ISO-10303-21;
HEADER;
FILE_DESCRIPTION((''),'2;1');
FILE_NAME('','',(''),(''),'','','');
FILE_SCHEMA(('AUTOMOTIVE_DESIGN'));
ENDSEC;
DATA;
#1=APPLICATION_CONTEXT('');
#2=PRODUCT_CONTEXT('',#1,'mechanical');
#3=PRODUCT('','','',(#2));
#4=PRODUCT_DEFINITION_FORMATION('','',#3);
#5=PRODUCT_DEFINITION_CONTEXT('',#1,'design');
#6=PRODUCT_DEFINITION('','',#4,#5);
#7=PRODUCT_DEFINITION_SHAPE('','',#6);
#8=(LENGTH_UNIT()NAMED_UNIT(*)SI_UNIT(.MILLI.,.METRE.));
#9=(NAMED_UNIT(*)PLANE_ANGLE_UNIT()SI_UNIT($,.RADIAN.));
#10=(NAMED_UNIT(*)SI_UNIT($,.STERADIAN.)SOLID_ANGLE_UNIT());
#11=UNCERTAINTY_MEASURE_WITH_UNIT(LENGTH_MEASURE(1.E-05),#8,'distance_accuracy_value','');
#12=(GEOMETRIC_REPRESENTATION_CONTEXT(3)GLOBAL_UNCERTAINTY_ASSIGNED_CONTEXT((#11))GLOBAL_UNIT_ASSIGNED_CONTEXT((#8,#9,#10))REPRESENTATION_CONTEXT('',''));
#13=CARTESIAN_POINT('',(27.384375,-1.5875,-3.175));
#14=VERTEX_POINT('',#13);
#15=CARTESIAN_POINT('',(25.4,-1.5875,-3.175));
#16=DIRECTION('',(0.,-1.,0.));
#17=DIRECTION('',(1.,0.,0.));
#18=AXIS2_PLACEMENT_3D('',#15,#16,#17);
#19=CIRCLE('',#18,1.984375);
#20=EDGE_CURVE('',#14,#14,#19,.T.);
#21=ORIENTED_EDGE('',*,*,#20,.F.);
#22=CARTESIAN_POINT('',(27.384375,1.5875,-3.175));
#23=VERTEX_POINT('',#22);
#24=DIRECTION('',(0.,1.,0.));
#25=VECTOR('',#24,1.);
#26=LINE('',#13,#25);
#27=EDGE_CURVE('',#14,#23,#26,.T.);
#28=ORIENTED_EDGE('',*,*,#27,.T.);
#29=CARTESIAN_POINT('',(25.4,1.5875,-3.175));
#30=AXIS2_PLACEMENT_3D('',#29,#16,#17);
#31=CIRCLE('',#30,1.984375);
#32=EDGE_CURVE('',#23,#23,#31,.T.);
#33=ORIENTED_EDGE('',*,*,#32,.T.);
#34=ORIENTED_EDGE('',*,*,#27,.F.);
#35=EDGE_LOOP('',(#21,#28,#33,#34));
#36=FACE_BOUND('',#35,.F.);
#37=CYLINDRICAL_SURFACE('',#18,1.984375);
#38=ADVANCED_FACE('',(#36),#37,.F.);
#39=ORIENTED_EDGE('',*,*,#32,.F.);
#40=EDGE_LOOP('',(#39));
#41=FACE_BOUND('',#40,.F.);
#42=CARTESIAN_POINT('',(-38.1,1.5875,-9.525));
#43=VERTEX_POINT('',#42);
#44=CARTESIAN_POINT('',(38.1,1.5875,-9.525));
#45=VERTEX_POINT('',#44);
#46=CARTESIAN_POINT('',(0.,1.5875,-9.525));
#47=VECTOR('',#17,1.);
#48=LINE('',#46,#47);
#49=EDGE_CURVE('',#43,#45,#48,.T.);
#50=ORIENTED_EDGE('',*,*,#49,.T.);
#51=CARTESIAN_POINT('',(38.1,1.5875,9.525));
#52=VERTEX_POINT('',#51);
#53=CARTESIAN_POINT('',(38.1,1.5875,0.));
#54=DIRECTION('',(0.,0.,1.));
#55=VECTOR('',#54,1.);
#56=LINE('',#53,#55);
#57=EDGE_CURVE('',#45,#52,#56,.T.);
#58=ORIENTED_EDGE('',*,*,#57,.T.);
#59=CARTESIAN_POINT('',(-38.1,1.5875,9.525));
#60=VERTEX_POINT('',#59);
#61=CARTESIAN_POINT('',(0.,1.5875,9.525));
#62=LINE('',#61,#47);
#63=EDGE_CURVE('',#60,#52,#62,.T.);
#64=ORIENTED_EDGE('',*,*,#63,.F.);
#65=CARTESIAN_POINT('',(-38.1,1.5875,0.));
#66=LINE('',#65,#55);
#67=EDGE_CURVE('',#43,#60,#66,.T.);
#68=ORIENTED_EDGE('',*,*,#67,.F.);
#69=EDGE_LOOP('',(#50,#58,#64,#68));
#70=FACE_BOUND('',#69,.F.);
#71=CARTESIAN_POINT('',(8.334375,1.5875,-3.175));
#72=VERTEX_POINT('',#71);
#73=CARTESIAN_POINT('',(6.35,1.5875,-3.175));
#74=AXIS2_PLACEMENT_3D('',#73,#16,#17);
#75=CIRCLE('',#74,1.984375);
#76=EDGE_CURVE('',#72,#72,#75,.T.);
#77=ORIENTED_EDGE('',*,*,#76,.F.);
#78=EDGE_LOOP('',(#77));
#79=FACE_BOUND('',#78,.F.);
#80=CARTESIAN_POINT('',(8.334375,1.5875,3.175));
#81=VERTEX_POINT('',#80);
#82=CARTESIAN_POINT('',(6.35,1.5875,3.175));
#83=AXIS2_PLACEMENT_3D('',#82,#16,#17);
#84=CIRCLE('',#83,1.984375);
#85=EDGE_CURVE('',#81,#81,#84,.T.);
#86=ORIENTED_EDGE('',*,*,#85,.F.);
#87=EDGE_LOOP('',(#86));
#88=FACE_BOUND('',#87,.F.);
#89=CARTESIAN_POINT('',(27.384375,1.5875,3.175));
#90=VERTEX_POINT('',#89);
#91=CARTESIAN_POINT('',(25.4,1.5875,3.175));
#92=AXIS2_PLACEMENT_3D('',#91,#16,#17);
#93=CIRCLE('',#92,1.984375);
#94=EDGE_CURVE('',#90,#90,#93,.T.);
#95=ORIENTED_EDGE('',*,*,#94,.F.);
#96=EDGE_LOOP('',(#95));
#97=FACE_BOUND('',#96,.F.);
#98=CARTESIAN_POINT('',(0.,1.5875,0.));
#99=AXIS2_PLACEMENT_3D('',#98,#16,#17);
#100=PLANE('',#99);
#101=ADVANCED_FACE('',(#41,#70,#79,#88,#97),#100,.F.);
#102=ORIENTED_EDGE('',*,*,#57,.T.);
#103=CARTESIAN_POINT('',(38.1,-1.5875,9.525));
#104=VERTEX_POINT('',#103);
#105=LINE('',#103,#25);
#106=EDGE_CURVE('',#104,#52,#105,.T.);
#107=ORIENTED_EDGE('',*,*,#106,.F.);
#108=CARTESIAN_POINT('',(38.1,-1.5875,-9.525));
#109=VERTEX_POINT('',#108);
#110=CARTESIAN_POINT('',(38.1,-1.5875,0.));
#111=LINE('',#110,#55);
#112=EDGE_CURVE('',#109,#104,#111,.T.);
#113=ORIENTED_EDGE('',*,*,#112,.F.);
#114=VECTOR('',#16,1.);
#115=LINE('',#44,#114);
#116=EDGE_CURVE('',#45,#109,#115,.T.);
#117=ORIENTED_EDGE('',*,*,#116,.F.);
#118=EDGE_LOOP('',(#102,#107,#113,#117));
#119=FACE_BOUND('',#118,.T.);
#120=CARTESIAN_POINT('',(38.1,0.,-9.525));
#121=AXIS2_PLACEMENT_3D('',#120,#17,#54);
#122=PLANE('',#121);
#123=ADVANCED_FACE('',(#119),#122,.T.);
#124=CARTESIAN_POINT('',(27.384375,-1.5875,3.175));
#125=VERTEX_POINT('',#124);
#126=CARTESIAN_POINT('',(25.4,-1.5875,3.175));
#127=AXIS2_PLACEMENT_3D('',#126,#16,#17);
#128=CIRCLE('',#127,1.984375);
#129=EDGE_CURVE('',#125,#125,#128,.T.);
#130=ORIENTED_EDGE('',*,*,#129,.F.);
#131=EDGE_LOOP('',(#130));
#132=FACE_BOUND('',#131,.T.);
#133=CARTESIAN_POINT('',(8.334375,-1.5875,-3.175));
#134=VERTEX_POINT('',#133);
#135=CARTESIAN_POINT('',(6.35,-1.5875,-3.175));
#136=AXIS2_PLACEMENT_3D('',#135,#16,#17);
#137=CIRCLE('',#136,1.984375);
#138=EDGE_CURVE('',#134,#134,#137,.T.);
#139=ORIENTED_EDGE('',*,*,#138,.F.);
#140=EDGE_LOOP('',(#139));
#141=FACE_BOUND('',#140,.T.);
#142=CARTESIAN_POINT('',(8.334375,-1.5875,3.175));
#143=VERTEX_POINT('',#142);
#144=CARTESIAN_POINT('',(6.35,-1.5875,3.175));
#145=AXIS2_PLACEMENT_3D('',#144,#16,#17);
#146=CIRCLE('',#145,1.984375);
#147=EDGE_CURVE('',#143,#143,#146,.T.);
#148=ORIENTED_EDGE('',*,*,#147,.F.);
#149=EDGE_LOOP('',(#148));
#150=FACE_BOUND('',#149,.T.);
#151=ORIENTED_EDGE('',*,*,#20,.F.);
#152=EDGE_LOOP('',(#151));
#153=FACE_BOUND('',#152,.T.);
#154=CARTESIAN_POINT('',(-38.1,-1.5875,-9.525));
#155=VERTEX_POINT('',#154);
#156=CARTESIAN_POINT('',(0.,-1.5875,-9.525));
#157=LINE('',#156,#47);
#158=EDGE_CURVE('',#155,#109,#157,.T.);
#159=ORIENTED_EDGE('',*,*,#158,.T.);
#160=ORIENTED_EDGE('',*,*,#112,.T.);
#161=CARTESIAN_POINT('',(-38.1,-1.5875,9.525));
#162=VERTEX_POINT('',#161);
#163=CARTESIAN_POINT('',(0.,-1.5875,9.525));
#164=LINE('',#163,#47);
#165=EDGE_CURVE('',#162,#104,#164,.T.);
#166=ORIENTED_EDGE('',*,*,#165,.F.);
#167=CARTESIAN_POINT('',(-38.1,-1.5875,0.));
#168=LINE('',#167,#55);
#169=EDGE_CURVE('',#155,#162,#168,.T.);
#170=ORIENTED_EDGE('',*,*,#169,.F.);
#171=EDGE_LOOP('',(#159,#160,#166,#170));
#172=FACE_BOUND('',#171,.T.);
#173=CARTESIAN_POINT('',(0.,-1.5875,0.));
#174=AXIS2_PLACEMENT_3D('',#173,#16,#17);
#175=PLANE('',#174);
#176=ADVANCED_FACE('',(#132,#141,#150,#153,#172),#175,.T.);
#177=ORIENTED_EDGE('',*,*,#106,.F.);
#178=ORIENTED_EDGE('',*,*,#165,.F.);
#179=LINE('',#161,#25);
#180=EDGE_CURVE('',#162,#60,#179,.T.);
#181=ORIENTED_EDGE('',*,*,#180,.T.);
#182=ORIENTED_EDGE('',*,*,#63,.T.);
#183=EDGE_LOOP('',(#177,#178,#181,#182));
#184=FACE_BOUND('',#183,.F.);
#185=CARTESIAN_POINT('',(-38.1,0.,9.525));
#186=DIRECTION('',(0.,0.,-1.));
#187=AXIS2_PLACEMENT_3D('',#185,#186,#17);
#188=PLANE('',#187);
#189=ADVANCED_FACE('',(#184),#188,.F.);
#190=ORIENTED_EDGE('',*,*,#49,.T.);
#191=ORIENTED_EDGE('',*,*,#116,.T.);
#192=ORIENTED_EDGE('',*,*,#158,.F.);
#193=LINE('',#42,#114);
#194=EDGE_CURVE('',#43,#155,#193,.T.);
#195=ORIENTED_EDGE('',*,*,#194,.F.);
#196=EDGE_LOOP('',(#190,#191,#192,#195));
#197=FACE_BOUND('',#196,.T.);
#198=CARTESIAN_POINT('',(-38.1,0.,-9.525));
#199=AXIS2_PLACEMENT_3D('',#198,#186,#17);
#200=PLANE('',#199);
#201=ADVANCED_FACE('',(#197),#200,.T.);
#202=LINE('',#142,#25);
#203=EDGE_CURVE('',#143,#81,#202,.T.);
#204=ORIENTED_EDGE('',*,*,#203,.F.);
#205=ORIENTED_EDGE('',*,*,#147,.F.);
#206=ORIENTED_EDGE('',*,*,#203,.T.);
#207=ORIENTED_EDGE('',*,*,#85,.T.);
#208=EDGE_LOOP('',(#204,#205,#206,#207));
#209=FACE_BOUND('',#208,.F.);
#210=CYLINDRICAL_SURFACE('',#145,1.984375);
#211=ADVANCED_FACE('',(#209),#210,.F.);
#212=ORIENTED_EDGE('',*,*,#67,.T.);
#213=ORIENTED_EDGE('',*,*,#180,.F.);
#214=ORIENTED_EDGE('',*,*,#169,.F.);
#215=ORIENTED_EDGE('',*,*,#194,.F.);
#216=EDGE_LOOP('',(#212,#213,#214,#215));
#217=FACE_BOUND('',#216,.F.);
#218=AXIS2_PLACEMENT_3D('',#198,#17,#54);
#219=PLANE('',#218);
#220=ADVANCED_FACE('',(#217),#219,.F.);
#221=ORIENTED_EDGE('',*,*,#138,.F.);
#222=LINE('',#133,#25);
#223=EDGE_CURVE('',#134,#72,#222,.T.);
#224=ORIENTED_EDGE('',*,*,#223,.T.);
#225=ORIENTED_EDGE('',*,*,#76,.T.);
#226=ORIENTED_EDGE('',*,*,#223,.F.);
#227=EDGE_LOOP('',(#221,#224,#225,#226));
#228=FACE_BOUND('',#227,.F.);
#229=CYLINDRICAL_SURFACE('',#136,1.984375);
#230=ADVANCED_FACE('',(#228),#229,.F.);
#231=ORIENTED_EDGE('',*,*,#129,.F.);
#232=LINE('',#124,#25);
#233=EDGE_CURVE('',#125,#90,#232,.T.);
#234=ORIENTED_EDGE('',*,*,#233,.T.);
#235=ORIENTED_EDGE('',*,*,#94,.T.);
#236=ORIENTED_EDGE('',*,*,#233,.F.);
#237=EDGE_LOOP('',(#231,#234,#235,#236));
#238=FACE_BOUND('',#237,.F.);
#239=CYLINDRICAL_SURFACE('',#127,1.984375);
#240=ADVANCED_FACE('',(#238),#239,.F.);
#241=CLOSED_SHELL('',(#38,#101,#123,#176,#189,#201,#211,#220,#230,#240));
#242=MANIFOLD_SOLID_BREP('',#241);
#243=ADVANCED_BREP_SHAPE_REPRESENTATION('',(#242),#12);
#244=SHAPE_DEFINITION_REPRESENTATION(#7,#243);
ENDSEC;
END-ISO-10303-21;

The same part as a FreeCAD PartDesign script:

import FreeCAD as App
import Part
import Sketcher
from FreeCAD import Vector
Q = App.Units.Quantity

doc = App.newDocument("Part")
body = doc.addObject("PartDesign::Body", "Body")

# Sketch on XZ plane
sketch1 = doc.addObject("Sketcher::SketchObject", "Sketch")
body.addObject(sketch1)
sketch1.AttachmentSupport = (doc.XZ_Plane, [""])
sketch1.MapMode = "FlatFace"
sketch1.addGeometry(Part.LineSegment(Vector(-38, 10, 0), Vector(-38, -10, 0)), False)
sketch1.addGeometry(Part.LineSegment(Vector(-38, -10, 0), Vector(38, -10, 0)), False)
sketch1.addGeometry(Part.LineSegment(Vector(38, -10, 0), Vector(38, 10, 0)), False)
sketch1.addGeometry(Part.LineSegment(Vector(38, 10, 0), Vector(-38, 10, 0)), False)
sketch1.addConstraint(Sketcher.Constraint("Coincident", 0, 2, 1, 1))
sketch1.addConstraint(Sketcher.Constraint("Coincident", 1, 2, 2, 1))
sketch1.addConstraint(Sketcher.Constraint("Coincident", 2, 2, 3, 1))
sketch1.addConstraint(Sketcher.Constraint("Coincident", 3, 2, 0, 1))
sketch1.addConstraint(Sketcher.Constraint("Vertical", 0))
sketch1.addConstraint(Sketcher.Constraint("Horizontal", 1))
sketch1.addConstraint(Sketcher.Constraint("Vertical", 2))
sketch1.addConstraint(Sketcher.Constraint("Horizontal", 3))
sketch1.addConstraint(Sketcher.Constraint("Symmetric", 0, 2, 2, 2, -1, 1))
sketch1.addConstraint(Sketcher.Constraint("DistanceX", 1, 1, 1, 2, Q("3 in")))
sketch1.addConstraint(Sketcher.Constraint("DistanceY", 0, 2, 0, 1, Q("0.75 in")))
pad1 = doc.addObject("PartDesign::Pad", "Pad")
body.addObject(pad1)
pad1.Profile = sketch1
pad1.Length = Q("0.125 in")
pad1.Midplane = True

# Sketch on XZ plane
sketch2 = doc.addObject("Sketcher::SketchObject", "Sketch001")
body.addObject(sketch2)
sketch2.AttachmentSupport = (doc.XZ_Plane, [""])
sketch2.MapMode = "FlatFace"
sketch2.AttachmentOffset = App.Placement(Vector(0, 0, 0.0625 * 25.4), App.Rotation())
sketch2.addGeometry(Part.Circle(Vector(6.3, 3.2, 0), Vector(0, 0, 1), 2), False)
sketch2.addGeometry(Part.Circle(Vector(25.4, 3.2, 0), Vector(0, 0, 1), 2), False)
sketch2.addGeometry(Part.Circle(Vector(25.4, -3.2, 0), Vector(0, 0, 1), 2), False)
sketch2.addGeometry(Part.Circle(Vector(6.3, -3.2, 0), Vector(0, 0, 1), 2), False)
sketch2.addConstraint(Sketcher.Constraint("Equal", 0, 1))
sketch2.addConstraint(Sketcher.Constraint("Equal", 1, 2))
sketch2.addConstraint(Sketcher.Constraint("Equal", 2, 3))
sketch2.addConstraint(Sketcher.Constraint("Symmetric", 1, 3, 2, 3, -1))
sketch2.addConstraint(Sketcher.Constraint("Symmetric", 0, 3, 3, 3, -1))
sketch2.addConstraint(Sketcher.Constraint("Horizontal", 0, 3, 1, 3))
sketch2.addConstraint(Sketcher.Constraint("Diameter", 0, Q("0.15625 in")))
sketch2.addConstraint(Sketcher.Constraint("DistanceX", -1, 1, 1, 3, Q("1 in")))
sketch2.addConstraint(Sketcher.Constraint("DistanceX", -1, 1, 0, 3, Q("0.25 in")))
sketch2.addConstraint(Sketcher.Constraint("DistanceY", 2, 3, 1, 3, Q("0.25 in")))
pocket1 = doc.addObject("PartDesign::Pocket", "Pocket")
body.addObject(pocket1)
pocket1.Profile = sketch2
pocket1.Length = Q("0.125 in")

doc.recompute()
